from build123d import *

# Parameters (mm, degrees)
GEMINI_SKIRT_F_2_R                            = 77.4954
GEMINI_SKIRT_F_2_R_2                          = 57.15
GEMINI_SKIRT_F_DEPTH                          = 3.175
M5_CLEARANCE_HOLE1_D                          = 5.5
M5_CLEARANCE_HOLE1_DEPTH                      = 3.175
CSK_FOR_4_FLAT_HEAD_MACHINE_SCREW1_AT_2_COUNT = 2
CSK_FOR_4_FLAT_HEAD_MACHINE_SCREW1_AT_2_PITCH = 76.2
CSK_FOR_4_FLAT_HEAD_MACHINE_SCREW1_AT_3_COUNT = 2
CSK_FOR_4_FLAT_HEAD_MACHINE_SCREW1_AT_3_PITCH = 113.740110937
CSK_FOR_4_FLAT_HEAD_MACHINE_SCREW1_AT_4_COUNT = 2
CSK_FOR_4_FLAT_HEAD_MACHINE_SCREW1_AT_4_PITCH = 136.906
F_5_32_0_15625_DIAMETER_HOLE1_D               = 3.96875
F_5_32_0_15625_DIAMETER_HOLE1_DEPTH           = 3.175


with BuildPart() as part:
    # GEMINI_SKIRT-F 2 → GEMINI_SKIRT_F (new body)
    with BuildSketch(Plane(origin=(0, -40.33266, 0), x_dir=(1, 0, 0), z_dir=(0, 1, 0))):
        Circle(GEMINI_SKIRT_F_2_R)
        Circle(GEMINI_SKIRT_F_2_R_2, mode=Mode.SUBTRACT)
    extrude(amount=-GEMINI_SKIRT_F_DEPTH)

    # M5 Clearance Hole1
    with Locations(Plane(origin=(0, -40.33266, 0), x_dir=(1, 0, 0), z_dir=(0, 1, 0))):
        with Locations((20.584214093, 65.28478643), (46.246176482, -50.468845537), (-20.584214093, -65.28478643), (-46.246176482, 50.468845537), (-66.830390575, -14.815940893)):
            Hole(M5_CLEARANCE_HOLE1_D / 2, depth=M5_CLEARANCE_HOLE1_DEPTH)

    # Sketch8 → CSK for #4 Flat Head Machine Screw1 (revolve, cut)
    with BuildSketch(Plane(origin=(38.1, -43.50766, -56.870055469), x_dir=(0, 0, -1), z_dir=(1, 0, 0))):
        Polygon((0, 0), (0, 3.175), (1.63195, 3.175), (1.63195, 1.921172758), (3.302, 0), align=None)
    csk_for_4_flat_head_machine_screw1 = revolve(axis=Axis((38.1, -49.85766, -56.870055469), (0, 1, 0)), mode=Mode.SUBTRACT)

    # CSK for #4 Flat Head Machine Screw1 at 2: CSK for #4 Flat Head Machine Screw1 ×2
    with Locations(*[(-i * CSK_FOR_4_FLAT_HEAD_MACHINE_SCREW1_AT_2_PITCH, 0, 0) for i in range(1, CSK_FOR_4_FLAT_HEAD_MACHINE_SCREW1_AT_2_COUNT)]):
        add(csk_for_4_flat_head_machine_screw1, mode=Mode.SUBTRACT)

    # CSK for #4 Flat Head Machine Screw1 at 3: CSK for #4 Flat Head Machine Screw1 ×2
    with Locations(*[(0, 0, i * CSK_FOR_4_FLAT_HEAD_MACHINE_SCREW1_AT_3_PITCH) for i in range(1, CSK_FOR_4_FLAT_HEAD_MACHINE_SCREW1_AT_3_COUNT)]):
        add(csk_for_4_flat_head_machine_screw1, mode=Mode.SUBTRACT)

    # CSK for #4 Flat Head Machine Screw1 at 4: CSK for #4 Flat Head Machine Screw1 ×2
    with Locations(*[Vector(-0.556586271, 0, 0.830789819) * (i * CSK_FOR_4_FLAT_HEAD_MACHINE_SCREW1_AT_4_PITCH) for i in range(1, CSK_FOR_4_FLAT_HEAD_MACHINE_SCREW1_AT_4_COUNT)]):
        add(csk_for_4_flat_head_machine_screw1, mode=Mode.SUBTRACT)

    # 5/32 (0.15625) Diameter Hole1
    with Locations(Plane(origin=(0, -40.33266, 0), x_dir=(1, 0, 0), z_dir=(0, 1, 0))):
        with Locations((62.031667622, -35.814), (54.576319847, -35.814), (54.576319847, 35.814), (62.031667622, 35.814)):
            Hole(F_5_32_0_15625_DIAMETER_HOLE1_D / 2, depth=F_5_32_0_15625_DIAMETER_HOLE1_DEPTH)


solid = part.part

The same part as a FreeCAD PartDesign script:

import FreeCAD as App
import Part
import Sketcher
from FreeCAD import Vector
Q = App.Units.Quantity

doc = App.newDocument("Part")
body = doc.addObject("PartDesign::Body", "Body")

# Sketch on XZ plane
sketch1 = body.newObject("Sketcher::SketchObject", "Sketch")
sketch1.AttachmentSupport = (doc.getObject("XZ_Plane"), [""])
sketch1.MapMode = "FlatFace"
sketch1.AttachmentOffset = App.Placement(Vector(0, 0, 1.5879 * 25.4), App.Rotation())
sketch1.addGeometry(Part.Circle(Vector(0, 0, 0), Vector(0, 0, 1), 77), False)
sketch1.addGeometry(Part.Circle(Vector(0, 0, 0), Vector(0, 0, 1), 57), False)
sketch1.addConstraint(Sketcher.Constraint("Coincident", 0, 3, -1, 1))
sketch1.addConstraint(Sketcher.Constraint("Coincident", 1, 3, -1, 1))
sketch1.addConstraint(Sketcher.Constraint("Diameter", 1, Q("4.5 in")))
sketch1.addConstraint(Sketcher.Constraint("Diameter", 0, Q("6.102 in")))
pad1 = body.newObject("PartDesign::Pad", "Pad")
pad1.Profile = sketch1
pad1.Length = Q("0.125 in")

# Sketch on XZ plane
sketch2 = body.newObject("Sketcher::SketchObject", "Sketch001")
sketch2.AttachmentSupport = (doc.getObject("XZ_Plane"), [""])
sketch2.MapMode = "FlatFace"
sketch2.AttachmentOffset = App.Placement(Vector(0, 0, 1.5879 * 25.4), App.Rotation())
sketch2.addGeometry(Part.Circle(Vector(20.6, -65.3, 0), Vector(0, 0, 1), 2.8), False)
sketch2.addGeometry(Part.Circle(Vector(46.2, 50.5, 0), Vector(0, 0, 1), 2.8), False)
sketch2.addGeometry(Part.Circle(Vector(-20.6, 65.3, 0), Vector(0, 0, 1), 2.8), False)
sketch2.addGeometry(Part.Circle(Vector(-46.2, -50.5, 0), Vector(0, 0, 1), 2.8), False)
sketch2.addGeometry(Part.Circle(Vector(-66.8, 14.8, 0), Vector(0, 0, 1), 2.8), False)
sketch2.addConstraint(Sketcher.Constraint("Equal", 0, 1))
sketch2.addConstraint(Sketcher.Constraint("Equal", 1, 2))
sketch2.addConstraint(Sketcher.Constraint("Equal", 2, 3))
sketch2.addConstraint(Sketcher.Constraint("Equal", 3, 4))
sketch2.addConstraint(Sketcher.Constraint("Symmetric", 0, 3, 2, 3, -1, 1))
sketch2.addConstraint(Sketcher.Constraint("Symmetric", 1, 3, 3, 3, -1, 1))
sketch2.addConstraint(Sketcher.Constraint("Diameter", 0, Q("5.5 mm")))
sketch2.addConstraint(Sketcher.Constraint("DistanceX", 4, 3, -1, 1, Q("66.830391 mm")))
sketch2.addConstraint(Sketcher.Constraint("DistanceY", -1, 1, 4, 3, Q("14.815941 mm")))
sketch2.addConstraint(Sketcher.Constraint("DistanceY", 0, 3, 1, 3, Q("115.753632 mm")))
sketch2.addConstraint(Sketcher.Constraint("DistanceX", 2, 3, 1, 3, Q("66.830391 mm")))
sketch2.addConstraint(Sketcher.Constraint("DistanceY", 1, 3, 2, 3, Q("14.815941 mm")))
sketch2.addConstraint(Sketcher.Constraint("DistanceX", 2, 3, 0, 3, Q("41.168428 mm")))
doc.recompute()
hole = body.newObject("PartDesign::Hole", "Hole")
hole.Profile = sketch2
hole.ThreadType = "None"
hole.Diameter = 5.5
hole.DepthType = "Dimension"
hole.Depth = Q("0.125 in")
hole.DrillPoint = "Flat"
hole.Reversed = True

# Sketch on YZ plane
sketch3 = body.newObject("Sketcher::SketchObject", "Sketch002")
sketch3.AttachmentSupport = (doc.getObject("YZ_Plane"), [""])
sketch3.MapMode = "FlatFace"
sketch3.AttachmentOffset = App.Placement(Vector(0, 0, 1.5 * 25.4), App.Rotation())
sketch3.addGeometry(Part.LineSegment(Vector(-40.3, -56.9, 0), Vector(-43.5, -56.9, 0)), False)
sketch3.addGeometry(Part.LineSegment(Vector(-43.5, -56.9, 0), Vector(-43.5, -60.2, 0)), False)
sketch3.addGeometry(Part.LineSegment(Vector(-43.5, -60.2, 0), Vector(-41.6, -58.5, 0)), False)
sketch3.addGeometry(Part.LineSegment(Vector(-41.6, -58.5, 0), Vector(-40.3, -58.5, 0)), False)
sketch3.addGeometry(Part.LineSegment(Vector(-40.3, -58.5, 0), Vector(-40.3, -56.9, 0)), False)
sketch3.addGeometry(Part.LineSegment(Vector(-43.5, -56.9, 0), Vector(-40.3, -56.9, 0)), True)  # axis
sketch3.addConstraint(Sketcher.Constraint("Coincident", 0, 2, 1, 1))
sketch3.addConstraint(Sketcher.Constraint("Coincident", 1, 2, 2, 1))
sketch3.addConstraint(Sketcher.Constraint("Coincident", 2, 2, 3, 1))
sketch3.addConstraint(Sketcher.Constraint("Coincident", 3, 2, 4, 1))
sketch3.addConstraint(Sketcher.Constraint("Coincident", 4, 2, 0, 1))
sketch3.addConstraint(Sketcher.Constraint("Horizontal", 0))
sketch3.addConstraint(Sketcher.Constraint("Vertical", 1))
sketch3.addConstraint(Sketcher.Constraint("Horizontal", 3))
sketch3.addConstraint(Sketcher.Constraint("Vertical", 4))
sketch3.addConstraint(Sketcher.Constraint("Horizontal", 5))
sketch3.addConstraint(Sketcher.Constraint("Coincident", 5, 1, 0, 2))
sketch3.addConstraint(Sketcher.Constraint("Vertical", 3, 2, 5, 2))
sketch3.addConstraint(Sketcher.Constraint("Angle", 2, Q("41 deg")))
sketch3.addConstraint(Sketcher.Constraint("DistanceY", 1, 2, 1, 1, Q("0.13 in")))
sketch3.addConstraint(Sketcher.Constraint("DistanceX", 0, 2, 0, 1, Q("0.125 in")))
sketch3.addConstraint(Sketcher.Constraint("DistanceX", 0, 2, -1, 1, Q("1.7129 in")))
sketch3.addConstraint(Sketcher.Constraint("DistanceY", 4, 1, 4, 2, Q("1.63195 mm")))
sketch3.addConstraint(Sketcher.Constraint("DistanceY", 0, 2, -1, 1, Q("56.870055 mm")))
groove = body.newObject("PartDesign::Groove", "Groove")
groove.Profile = sketch3
groove.ReferenceAxis = (sketch3, ["Axis0"])
groove.Angle = 360
doc.recompute()

linearpattern = body.newObject("PartDesign::LinearPattern", "LinearPattern")
linearpattern.Originals = [groove]
linearpattern.Direction = (doc.getObject("X_Axis"), [""])
linearpattern.Mode = "offset"
linearpattern.Offset = Q("3 in")
linearpattern.Occurrences = 2
linearpattern.Reversed = True
body.Tip = linearpattern
doc.recompute()

linearpattern2 = body.newObject("PartDesign::LinearPattern", "LinearPattern001")
linearpattern2.Originals = [groove]
linearpattern2.Direction = (doc.getObject("Z_Axis"), [""])
linearpattern2.Mode = "offset"
linearpattern2.Offset = 113.740111
linearpattern2.Occurrences = 2
body.Tip = linearpattern2
doc.recompute()

datumline = body.newObject("PartDesign::Line", "DatumLine")
datumline.Placement = App.Placement(Vector(0, 0, 0), App.Rotation(Vector(0, 0, 1), Vector(-0.556586271, 0, 0.830789819)))
linearpattern3 = body.newObject("PartDesign::LinearPattern", "LinearPattern002")
linearpattern3.Originals = [groove]
linearpattern3.Direction = (datumline, [""])
linearpattern3.Mode = "offset"
linearpattern3.Offset = Q("5.39 in")
linearpattern3.Occurrences = 2
body.Tip = linearpattern3

# Sketch on XZ plane
sketch4 = body.newObject("Sketcher::SketchObject", "Sketch003")
sketch4.AttachmentSupport = (doc.getObject("XZ_Plane"), [""])
sketch4.MapMode = "FlatFace"
sketch4.AttachmentOffset = App.Placement(Vector(0, 0, 1.5879 * 25.4), App.Rotation())
sketch4.addGeometry(Part.Circle(Vector(62, 35.8, 0), Vector(0, 0, 1), 2), False)
sketch4.addGeometry(Part.Circle(Vector(54.6, 35.8, 0), Vector(0, 0, 1), 2), False)
sketch4.addGeometry(Part.Circle(Vector(54.6, -35.8, 0), Vector(0, 0, 1), 2), False)
sketch4.addGeometry(Part.Circle(Vector(62, -35.8, 0), Vector(0, 0, 1), 2), False)
sketch4.addConstraint(Sketcher.Constraint("Equal", 0, 1))
sketch4.addConstraint(Sketcher.Constraint("Equal", 1, 2))
sketch4.addConstraint(Sketcher.Constraint("Equal", 2, 3))
sketch4.addConstraint(Sketcher.Constraint("Symmetric", 1, 3, 2, 3, -1))
sketch4.addConstraint(Sketcher.Constraint("Symmetric", 0, 3, 3, 3, -1))
sketch4.addConstraint(Sketcher.Constraint("Horizontal", 0, 3, 1, 3))
sketch4.addConstraint(Sketcher.Constraint("Diameter", 0, Q("0.15625 in")))
sketch4.addConstraint(Sketcher.Constraint("DistanceY", -1, 1, 0, 3, Q("1.41 in")))
sketch4.addConstraint(Sketcher.Constraint("DistanceX", -1, 1, 1, 3, Q("54.57632 mm")))
sketch4.addConstraint(Sketcher.Constraint("DistanceX", -1, 1, 0, 3, Q("62.031668 mm")))
doc.recompute()
hole2 = body.newObject("PartDesign::Hole", "Hole001")
hole2.Profile = sketch4
hole2.ThreadType = "None"
hole2.Diameter = Q("0.15625 in")
hole2.DepthType = "Dimension"
hole2.Depth = Q("0.125 in")
hole2.DrillPoint = "Flat"
hole2.Reversed = True

doc.recompute()
